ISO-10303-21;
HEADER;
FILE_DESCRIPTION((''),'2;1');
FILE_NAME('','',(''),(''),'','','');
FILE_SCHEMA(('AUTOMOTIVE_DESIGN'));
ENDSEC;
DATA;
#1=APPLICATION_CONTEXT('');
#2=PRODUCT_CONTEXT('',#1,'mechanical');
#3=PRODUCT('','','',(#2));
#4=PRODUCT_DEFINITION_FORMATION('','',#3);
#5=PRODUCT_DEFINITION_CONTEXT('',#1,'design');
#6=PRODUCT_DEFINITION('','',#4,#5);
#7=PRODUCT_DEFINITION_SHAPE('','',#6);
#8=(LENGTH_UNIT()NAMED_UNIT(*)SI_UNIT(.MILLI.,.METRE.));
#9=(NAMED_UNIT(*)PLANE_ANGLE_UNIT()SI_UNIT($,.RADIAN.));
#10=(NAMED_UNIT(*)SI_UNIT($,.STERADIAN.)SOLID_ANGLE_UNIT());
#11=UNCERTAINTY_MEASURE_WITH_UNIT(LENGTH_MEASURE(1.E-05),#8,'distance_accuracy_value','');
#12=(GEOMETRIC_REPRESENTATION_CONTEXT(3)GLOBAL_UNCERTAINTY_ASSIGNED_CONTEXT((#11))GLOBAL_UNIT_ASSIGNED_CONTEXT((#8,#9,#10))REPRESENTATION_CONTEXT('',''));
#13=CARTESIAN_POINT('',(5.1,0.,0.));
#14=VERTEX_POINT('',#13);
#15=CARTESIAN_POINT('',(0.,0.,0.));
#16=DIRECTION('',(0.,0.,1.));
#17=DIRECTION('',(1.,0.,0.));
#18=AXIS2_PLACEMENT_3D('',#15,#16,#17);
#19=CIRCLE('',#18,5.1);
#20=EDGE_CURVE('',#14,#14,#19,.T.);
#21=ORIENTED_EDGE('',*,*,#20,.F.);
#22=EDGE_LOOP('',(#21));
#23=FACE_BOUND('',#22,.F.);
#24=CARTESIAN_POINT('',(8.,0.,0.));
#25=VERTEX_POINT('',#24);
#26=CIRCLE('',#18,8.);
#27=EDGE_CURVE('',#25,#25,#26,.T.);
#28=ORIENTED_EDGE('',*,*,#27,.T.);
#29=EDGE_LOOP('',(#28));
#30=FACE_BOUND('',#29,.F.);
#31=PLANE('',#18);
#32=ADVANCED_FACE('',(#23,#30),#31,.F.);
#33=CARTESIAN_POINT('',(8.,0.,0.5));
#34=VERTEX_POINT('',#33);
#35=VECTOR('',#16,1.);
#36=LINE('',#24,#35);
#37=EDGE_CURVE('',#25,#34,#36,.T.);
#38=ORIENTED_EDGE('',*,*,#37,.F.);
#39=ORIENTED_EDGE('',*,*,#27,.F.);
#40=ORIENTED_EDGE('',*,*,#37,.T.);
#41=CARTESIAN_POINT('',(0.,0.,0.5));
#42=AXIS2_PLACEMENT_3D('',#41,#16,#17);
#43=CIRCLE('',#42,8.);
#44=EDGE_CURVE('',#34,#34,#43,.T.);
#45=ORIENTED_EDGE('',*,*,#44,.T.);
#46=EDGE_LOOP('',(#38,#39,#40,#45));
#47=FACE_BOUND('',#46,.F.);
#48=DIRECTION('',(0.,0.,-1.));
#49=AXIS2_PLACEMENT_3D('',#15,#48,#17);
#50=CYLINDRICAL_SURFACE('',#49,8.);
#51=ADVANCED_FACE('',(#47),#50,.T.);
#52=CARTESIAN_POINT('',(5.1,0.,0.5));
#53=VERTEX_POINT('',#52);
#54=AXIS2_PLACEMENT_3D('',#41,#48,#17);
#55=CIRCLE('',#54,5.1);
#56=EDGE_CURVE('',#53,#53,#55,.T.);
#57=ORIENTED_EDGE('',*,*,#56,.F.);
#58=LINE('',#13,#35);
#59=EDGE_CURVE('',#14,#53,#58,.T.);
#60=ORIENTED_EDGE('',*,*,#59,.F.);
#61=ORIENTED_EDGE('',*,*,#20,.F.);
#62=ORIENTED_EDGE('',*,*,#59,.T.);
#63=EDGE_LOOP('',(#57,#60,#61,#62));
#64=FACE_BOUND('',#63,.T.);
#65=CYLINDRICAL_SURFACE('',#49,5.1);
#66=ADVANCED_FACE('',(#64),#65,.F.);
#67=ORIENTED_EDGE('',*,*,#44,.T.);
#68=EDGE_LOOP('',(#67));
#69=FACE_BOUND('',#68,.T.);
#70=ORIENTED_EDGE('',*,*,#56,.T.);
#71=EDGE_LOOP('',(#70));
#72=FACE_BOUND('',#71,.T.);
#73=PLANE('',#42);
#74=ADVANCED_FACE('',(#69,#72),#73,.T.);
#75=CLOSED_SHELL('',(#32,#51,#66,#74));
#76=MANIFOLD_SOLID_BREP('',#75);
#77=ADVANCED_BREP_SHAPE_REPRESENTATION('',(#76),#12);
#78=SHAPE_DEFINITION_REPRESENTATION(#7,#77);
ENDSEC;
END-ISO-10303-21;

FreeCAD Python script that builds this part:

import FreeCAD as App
import Part
import Sketcher

doc = App.newDocument("Part")
body = doc.addObject("PartDesign::Body", "Body")

sketch1 = doc.addObject("Sketcher::SketchObject", "Sketch")
body.addObject(sketch1)
sketch1.AttachmentSupport = (doc.XY_Plane, [""])
sketch1.MapMode = "FlatFace"
sketch1.addGeometry(Part.Circle(App.Vector(0, 0, 0), App.Vector(0, 0, 1), 5), False)
sketch1.addConstraint([
    Sketcher.Constraint("Coincident", 0, 3, -1, 1),
    Sketcher.Constraint("Diameter", 0, 10.2),
])
pad1 = doc.addObject("PartDesign::Pad", "Pad")
body.addObject(pad1)
pad1.Profile = sketch1
pad1.Length = 10
body2 = doc.addObject("PartDesign::Body", "Body001")

sketch2 = doc.addObject("Sketcher::SketchObject", "Sketch001")
body2.addObject(sketch2)
sketch2.AttachmentSupport = (doc.getObject("XY_Plane001"), [""])
sketch2.MapMode = "FlatFace"
sketch2.addGeometry(Part.Circle(App.Vector(0, 0, 0), App.Vector(0, 0, 1), 8), False)
sketch2.addConstraint([
    Sketcher.Constraint("Coincident", 0, 3, -1, 1),
    Sketcher.Constraint("Diameter", 0, 16.0),
])
pad2 = doc.addObject("PartDesign::Pad", "Pad001")
body2.addObject(pad2)
pad2.Profile = sketch2
pad2.Length = 0.5
doc.recompute()

boolean = doc.addObject("PartDesign::Boolean", "Boolean")
body2.addObject(boolean)
boolean.Type = "Cut"
boolean.addObjects([body])

doc.recompute()
